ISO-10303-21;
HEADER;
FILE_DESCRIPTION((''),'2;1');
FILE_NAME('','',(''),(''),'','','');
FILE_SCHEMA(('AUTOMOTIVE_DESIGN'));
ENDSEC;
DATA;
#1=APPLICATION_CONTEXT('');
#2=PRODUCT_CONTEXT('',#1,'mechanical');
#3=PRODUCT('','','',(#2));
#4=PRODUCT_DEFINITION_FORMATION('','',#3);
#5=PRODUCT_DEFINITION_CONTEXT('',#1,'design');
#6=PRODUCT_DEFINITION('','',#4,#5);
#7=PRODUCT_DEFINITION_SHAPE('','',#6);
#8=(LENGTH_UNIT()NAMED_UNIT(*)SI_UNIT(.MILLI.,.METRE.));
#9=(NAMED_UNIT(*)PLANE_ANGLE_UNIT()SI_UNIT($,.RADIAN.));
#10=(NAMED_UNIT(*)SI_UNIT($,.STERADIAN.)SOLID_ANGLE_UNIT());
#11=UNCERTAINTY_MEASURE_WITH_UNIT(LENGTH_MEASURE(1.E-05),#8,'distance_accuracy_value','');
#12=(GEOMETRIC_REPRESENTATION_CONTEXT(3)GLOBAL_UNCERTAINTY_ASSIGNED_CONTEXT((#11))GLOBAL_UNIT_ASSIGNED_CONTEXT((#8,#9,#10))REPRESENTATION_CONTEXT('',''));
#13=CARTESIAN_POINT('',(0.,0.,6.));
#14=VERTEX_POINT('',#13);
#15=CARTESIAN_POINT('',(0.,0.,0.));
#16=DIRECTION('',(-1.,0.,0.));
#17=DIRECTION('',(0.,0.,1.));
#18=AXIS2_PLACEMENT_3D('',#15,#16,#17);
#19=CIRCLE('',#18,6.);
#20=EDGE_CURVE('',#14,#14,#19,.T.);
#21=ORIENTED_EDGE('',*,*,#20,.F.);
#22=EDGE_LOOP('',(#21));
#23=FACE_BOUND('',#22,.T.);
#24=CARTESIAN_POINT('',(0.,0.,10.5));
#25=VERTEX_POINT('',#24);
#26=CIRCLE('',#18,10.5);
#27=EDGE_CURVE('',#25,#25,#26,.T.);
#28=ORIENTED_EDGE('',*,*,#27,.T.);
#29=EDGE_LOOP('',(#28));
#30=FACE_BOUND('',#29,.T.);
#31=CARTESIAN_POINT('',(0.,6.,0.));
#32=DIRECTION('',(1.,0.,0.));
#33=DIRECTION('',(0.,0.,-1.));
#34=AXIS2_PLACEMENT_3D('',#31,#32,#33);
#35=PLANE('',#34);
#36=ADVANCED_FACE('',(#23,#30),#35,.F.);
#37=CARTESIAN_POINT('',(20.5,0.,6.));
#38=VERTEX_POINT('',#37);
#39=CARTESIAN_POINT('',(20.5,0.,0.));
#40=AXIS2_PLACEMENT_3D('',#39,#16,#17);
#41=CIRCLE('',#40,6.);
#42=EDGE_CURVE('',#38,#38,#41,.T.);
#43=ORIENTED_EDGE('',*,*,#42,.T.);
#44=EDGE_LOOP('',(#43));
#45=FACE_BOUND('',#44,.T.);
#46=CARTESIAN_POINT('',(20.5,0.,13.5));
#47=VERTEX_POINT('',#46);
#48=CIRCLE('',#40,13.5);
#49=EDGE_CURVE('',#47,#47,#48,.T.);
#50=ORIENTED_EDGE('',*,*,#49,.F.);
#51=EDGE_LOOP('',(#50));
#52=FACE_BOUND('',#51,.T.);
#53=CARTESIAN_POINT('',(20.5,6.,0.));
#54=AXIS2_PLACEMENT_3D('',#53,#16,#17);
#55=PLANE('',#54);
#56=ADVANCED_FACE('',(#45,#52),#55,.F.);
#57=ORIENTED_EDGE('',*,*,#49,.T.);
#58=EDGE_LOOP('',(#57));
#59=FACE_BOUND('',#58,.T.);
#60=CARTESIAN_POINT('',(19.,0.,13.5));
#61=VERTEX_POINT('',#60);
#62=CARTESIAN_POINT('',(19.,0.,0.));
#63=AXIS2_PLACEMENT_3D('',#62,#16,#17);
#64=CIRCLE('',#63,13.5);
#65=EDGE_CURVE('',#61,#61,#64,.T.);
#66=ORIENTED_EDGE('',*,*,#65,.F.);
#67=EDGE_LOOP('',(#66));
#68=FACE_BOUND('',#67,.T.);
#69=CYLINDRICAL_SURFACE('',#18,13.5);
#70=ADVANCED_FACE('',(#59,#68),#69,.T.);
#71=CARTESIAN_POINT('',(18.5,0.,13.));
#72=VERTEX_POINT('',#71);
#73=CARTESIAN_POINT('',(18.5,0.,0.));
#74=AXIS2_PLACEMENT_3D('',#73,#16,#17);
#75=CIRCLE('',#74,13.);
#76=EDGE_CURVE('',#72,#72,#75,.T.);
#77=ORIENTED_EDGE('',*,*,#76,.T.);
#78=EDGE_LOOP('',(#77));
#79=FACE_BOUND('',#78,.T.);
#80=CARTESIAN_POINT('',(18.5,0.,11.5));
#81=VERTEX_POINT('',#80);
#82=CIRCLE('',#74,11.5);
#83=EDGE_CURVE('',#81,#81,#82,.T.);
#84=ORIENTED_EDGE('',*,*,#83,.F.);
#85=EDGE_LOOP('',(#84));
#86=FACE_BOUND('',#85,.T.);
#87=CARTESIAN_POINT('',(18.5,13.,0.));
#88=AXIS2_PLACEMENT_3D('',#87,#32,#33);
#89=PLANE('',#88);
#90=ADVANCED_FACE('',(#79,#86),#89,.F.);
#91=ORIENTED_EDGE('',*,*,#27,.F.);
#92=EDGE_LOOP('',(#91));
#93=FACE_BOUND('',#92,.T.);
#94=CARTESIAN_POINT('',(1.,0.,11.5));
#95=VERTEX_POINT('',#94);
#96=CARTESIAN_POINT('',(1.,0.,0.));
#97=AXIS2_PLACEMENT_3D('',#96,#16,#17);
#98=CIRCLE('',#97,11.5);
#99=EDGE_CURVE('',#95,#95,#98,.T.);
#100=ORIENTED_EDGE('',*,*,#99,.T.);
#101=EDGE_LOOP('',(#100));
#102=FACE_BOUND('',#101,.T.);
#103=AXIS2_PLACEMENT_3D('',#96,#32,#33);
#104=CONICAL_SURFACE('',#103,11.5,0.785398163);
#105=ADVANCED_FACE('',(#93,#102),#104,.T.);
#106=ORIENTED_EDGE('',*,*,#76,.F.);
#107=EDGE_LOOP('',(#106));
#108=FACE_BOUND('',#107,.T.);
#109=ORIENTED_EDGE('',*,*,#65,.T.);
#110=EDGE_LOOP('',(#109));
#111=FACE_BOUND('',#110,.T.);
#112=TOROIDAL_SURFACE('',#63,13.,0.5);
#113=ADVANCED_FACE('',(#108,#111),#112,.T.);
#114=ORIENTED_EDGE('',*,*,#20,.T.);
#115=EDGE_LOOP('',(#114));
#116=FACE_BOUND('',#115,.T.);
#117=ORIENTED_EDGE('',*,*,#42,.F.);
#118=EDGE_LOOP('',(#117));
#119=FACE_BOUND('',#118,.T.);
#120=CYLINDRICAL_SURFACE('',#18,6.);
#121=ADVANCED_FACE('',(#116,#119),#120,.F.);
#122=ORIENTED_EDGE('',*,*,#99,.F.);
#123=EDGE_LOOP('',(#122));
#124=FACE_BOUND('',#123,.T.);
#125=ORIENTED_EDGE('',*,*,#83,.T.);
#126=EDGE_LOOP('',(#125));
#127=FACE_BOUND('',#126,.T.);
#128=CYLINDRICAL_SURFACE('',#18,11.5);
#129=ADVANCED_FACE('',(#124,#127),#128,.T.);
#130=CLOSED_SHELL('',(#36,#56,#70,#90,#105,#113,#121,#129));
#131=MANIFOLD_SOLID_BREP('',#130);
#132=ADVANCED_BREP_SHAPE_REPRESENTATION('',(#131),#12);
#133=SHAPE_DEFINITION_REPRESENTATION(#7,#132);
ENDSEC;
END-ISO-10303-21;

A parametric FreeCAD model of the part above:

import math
import FreeCAD as App
import Part
import Sketcher

V = App.Vector
Q = App.Units.Quantity

doc = App.newDocument("Part")
body = doc.addObject("PartDesign::Body", "Body")

sketch1 = body.newObject("Sketcher::SketchObject", "Sketch")
sketch1.AttachmentSupport = (doc.getObject("XY_Plane"), [""])
sketch1.MapMode = "FlatFace"
sketch1.addGeometry([
    Part.LineSegment(V(0, 6, 0), V(20.5, 6, 0)),
    Part.LineSegment(V(20.5, 6, 0), V(20.5, 13.5, 0)),
    Part.LineSegment(V(20.5, 13.5, 0), V(19, 13.5, 0)),
    Part.ArcOfCircle(Part.Circle(V(19, 13, 0), V(0, 0, 1), 0.5), math.radians(90), math.radians(180)),
    Part.LineSegment(V(18.5, 13, 0), V(18.5, 11.5, 0)),
    Part.LineSegment(V(18.5, 11.5, 0), V(1, 11.5, 0)),
    Part.LineSegment(V(1, 11.5, 0), V(0, 10.5, 0)),
    Part.LineSegment(V(0, 10.5, 0), V(0, 6, 0)),
], False)
sketch1.addConstraint([
    Sketcher.Constraint("Coincident", 0, 2, 1, 1),
    Sketcher.Constraint("Coincident", 1, 2, 2, 1),
    Sketcher.Constraint("Tangent", 2, 2, 3, 1),
    Sketcher.Constraint("Tangent", 3, 2, 4, 1),
    Sketcher.Constraint("Coincident", 4, 2, 5, 1),
    Sketcher.Constraint("Coincident", 5, 2, 6, 1),
    Sketcher.Constraint("Coincident", 6, 2, 7, 1),
    Sketcher.Constraint("Coincident", 7, 2, 0, 1),
    Sketcher.Constraint("Horizontal", 0),
    Sketcher.Constraint("Vertical", 1),
    Sketcher.Constraint("Horizontal", 2),
    Sketcher.Constraint("Vertical", 4),
    Sketcher.Constraint("Horizontal", 5),
    Sketcher.Constraint("Vertical", 7),
    Sketcher.Constraint("PointOnObject", 6, 2, -2),
    Sketcher.Constraint("Equal", 2, 4),
    Sketcher.Constraint("Radius", 3, Q("0.5 mm")),
    Sketcher.Constraint("Angle", 6, Q("-135 deg")),
    Sketcher.Constraint("DistanceX", 0, 1, 0, 2, Q("20.5 mm")),
    Sketcher.Constraint("DistanceX", 2, 2, 2, 1, Q("1.5 mm")),
    Sketcher.Constraint("DistanceX", 5, 2, 5, 1, Q("17.5 mm")),
    Sketcher.Constraint("DistanceY", 1, 1, 1, 2, Q("7.5 mm")),
    Sketcher.Constraint("DistanceY", -1, 1, 3, 3, Q("13 mm")),
])
revolution = body.newObject("PartDesign::Revolution", "Revolution")
revolution.Profile = sketch1
revolution.ReferenceAxis = (sketch1, ["H_Axis"])
revolution.Angle = 360

doc.recompute()
